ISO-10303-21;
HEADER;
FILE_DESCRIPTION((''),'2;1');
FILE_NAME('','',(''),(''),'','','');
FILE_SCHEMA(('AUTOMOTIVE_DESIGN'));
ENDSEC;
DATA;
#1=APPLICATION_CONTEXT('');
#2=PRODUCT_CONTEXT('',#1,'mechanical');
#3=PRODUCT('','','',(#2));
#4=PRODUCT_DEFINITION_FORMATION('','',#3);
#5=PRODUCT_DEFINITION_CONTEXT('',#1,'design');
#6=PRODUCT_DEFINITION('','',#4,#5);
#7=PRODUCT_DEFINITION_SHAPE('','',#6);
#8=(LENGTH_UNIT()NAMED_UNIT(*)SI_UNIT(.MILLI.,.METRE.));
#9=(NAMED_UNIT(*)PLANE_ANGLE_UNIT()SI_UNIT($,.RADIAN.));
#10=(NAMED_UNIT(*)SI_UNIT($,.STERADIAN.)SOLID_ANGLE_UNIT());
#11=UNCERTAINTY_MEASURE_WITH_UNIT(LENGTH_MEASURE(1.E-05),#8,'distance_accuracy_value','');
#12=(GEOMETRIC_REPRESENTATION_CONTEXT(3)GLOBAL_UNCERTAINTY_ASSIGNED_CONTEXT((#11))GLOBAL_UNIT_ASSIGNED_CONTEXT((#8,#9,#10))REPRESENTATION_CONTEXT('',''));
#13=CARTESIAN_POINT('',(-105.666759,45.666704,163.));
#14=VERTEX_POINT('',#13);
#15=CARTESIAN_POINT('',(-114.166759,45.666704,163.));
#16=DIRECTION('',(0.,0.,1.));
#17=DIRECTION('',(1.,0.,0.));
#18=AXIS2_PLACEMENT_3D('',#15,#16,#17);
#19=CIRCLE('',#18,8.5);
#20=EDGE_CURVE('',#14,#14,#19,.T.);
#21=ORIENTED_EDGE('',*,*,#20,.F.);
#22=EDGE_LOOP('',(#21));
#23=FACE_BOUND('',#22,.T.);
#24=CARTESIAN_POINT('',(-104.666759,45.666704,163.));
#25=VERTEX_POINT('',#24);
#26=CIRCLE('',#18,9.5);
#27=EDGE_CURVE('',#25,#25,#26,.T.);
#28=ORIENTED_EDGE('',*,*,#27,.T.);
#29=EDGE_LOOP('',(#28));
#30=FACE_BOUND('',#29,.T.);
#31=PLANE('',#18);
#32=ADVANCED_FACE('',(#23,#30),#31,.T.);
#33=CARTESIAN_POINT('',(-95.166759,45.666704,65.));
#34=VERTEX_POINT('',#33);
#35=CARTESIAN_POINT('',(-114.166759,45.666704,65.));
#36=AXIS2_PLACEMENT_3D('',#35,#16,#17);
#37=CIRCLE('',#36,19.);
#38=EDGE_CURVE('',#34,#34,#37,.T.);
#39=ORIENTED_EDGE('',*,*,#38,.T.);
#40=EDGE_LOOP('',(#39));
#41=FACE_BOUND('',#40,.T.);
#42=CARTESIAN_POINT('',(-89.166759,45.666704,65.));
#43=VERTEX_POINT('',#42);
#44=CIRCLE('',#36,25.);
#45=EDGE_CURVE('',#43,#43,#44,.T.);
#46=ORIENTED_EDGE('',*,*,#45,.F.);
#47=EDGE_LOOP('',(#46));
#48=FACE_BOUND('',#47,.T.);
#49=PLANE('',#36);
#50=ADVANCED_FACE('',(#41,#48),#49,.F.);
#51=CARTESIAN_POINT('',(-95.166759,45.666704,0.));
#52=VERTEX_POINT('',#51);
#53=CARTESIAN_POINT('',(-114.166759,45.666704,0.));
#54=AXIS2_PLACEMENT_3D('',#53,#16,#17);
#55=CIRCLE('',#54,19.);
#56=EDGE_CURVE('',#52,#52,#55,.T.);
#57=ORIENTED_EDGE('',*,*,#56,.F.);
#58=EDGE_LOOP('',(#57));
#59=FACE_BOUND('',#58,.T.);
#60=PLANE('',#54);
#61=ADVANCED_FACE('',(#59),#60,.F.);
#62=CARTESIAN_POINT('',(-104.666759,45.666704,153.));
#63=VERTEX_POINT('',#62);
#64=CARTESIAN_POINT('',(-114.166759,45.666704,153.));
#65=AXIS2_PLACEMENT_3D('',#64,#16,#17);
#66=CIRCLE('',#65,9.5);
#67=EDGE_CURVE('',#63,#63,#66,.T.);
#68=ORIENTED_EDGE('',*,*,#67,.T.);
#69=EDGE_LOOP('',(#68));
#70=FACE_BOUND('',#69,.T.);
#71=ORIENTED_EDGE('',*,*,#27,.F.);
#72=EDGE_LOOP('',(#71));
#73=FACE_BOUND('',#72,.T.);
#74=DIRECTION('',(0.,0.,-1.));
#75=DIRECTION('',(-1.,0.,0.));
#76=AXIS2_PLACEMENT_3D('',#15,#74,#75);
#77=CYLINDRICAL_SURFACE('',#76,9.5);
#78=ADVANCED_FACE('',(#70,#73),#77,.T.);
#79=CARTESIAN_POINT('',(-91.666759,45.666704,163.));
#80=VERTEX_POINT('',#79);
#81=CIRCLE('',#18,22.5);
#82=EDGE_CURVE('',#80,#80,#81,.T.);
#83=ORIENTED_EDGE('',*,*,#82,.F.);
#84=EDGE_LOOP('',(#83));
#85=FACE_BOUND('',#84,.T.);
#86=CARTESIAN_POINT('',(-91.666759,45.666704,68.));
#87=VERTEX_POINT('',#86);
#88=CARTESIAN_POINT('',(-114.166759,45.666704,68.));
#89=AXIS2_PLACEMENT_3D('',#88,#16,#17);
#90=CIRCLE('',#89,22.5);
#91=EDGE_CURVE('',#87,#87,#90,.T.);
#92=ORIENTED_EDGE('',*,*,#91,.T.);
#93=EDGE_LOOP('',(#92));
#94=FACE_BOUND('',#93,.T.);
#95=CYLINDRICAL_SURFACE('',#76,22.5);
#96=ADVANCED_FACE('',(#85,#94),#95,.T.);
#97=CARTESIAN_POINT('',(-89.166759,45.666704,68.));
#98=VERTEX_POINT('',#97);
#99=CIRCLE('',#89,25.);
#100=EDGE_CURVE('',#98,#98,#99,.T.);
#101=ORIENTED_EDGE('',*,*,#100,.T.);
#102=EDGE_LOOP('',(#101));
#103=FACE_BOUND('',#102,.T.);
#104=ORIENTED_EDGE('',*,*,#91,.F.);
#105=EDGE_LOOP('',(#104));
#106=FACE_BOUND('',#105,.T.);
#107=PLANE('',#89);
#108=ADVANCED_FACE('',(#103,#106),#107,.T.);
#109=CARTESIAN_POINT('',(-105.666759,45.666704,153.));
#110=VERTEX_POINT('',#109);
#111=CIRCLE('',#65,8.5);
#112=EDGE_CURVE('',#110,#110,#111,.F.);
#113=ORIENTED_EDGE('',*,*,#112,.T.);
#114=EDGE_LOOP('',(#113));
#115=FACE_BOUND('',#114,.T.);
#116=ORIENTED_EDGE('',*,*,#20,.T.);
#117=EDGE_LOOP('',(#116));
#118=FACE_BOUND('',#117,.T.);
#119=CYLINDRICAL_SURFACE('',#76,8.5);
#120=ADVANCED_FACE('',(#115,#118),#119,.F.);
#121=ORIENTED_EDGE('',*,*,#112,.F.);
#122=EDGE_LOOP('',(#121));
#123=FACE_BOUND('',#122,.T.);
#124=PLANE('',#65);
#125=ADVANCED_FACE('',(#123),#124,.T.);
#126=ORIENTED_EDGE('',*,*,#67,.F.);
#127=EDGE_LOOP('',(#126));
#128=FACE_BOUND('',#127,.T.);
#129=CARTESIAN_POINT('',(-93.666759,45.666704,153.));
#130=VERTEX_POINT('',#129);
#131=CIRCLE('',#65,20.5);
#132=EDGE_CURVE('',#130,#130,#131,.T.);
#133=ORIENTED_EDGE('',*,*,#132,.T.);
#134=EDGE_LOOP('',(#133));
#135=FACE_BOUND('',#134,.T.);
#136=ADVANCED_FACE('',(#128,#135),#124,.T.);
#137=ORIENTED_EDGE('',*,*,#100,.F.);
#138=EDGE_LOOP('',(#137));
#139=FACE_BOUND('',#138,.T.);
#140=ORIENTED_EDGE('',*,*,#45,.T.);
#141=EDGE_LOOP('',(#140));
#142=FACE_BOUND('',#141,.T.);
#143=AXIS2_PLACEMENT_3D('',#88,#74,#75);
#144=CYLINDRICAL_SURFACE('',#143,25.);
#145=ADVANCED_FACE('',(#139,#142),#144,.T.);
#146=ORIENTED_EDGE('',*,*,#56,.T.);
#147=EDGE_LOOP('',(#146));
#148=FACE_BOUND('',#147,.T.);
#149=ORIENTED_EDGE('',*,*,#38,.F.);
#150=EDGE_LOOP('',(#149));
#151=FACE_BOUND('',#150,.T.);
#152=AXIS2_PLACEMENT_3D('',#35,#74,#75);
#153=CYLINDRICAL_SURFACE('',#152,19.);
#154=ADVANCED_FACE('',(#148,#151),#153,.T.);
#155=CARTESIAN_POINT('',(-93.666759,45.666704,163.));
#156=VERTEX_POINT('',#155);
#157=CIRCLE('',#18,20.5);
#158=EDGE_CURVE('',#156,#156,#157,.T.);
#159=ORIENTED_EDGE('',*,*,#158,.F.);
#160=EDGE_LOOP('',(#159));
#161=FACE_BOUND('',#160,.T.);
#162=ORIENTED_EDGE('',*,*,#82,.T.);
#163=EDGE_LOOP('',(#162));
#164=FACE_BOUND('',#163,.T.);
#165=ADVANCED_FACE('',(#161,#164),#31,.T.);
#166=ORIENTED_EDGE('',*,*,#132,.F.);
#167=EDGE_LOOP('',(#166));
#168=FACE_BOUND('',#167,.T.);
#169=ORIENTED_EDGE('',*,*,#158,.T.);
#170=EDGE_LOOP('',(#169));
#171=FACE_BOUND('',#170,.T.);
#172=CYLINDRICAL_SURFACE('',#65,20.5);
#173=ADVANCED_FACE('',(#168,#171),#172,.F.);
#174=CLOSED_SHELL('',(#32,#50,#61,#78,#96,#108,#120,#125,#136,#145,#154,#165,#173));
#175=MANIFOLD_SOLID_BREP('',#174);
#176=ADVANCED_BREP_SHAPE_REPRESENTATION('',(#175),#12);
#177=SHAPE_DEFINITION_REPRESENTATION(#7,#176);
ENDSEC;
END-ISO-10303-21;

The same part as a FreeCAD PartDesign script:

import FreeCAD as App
import Part
import Sketcher

doc = App.newDocument("Part")
body = doc.addObject("PartDesign::Body", "Body")

# Sketch on XY plane
sketch1 = body.newObject("Sketcher::SketchObject", "Sketch")
sketch1.AttachmentSupport = (doc.getObject("XY_Plane"), [""])
sketch1.MapMode = "FlatFace"
sketch1.addGeometry(Part.Circle(App.Vector(-114.166759, 45.666704, 0), App.Vector(0, 0, 1), 19), False)
sketch1.addConstraint([
    Sketcher.Constraint("Diameter", 0, 38.0),
    Sketcher.Constraint("DistanceX", 0, 3, -1, 1, 114.166759),
    Sketcher.Constraint("DistanceY", -1, 1, 0, 3, 45.666704),
])
pad1 = body.newObject("PartDesign::Pad", "Pad")
pad1.Profile = sketch1
pad1.Length = 65

# Sketch on XY plane
sketch2 = body.newObject("Sketcher::SketchObject", "Sketch001")
sketch2.AttachmentSupport = (doc.getObject("XY_Plane"), [""])
sketch2.MapMode = "FlatFace"
sketch2.AttachmentOffset = App.Placement(App.Vector(0, 0, 65), App.Rotation())
sketch2.addGeometry(Part.Circle(App.Vector(-114.166759, 45.666704, 0), App.Vector(0, 0, 1), 25), False)
sketch2.addConstraint([
    Sketcher.Constraint("Diameter", 0, 50.0),
    Sketcher.Constraint("DistanceX", 0, 3, -1, 1, 114.166759),
    Sketcher.Constraint("DistanceY", -1, 1, 0, 3, 45.666704),
])
pad2 = body.newObject("PartDesign::Pad", "Pad001")
pad2.Profile = sketch2
pad2.Length = 3

# Sketch on XY plane
sketch3 = body.newObject("Sketcher::SketchObject", "Sketch002")
sketch3.AttachmentSupport = (doc.getObject("XY_Plane"), [""])
sketch3.MapMode = "FlatFace"
sketch3.AttachmentOffset = App.Placement(App.Vector(0, 0, 68), App.Rotation())
sketch3.addGeometry(Part.Circle(App.Vector(-114.166759, 45.666704, 0), App.Vector(0, 0, 1), 22.5), False)
sketch3.addConstraint([
    Sketcher.Constraint("Diameter", 0, 45.0),
    Sketcher.Constraint("DistanceX", 0, 3, -1, 1, 114.166759),
    Sketcher.Constraint("DistanceY", -1, 1, 0, 3, 45.666704),
])
pad3 = body.newObject("PartDesign::Pad", "Pad002")
pad3.Profile = sketch3
pad3.Length = 95

# Sketch on XY plane
sketch4 = body.newObject("Sketcher::SketchObject", "Sketch003")
sketch4.AttachmentSupport = (doc.getObject("XY_Plane"), [""])
sketch4.MapMode = "FlatFace"
sketch4.AttachmentOffset = App.Placement(App.Vector(0, 0, 163), App.Rotation())
sketch4.addGeometry(Part.Circle(App.Vector(-114.166759, 45.666704, 0), App.Vector(0, 0, 1), 20.5), False)
sketch4.addConstraint([
    Sketcher.Constraint("Diameter", 0, 41.0),
    Sketcher.Constraint("DistanceX", 0, 3, -1, 1, 114.166759),
    Sketcher.Constraint("DistanceY", -1, 1, 0, 3, 45.666704),
])
pocket1 = body.newObject("PartDesign::Pocket", "Pocket")
pocket1.Profile = sketch4
pocket1.Length = 10

# Sketch on XY plane
sketch5 = body.newObject("Sketcher::SketchObject", "Sketch004")
sketch5.AttachmentSupport = (doc.getObject("XY_Plane"), [""])
sketch5.MapMode = "FlatFace"
sketch5.AttachmentOffset = App.Placement(App.Vector(0, 0, 153), App.Rotation())
sketch5.addGeometry([
    Part.Circle(App.Vector(-114.166759, 45.666704, 0), App.Vector(0, 0, 1), 9.5),
    Part.Circle(App.Vector(-114.166759, 45.666704, 0), App.Vector(0, 0, 1), 8.5),
], False)
sketch5.addConstraint([
    Sketcher.Constraint("Coincident", 1, 3, 0, 3),
    Sketcher.Constraint("Diameter", 0, 19.0),
    Sketcher.Constraint("Diameter", 1, 17.0),
    Sketcher.Constraint("DistanceX", 0, 3, -1, 1, 114.166759),
    Sketcher.Constraint("DistanceY", -1, 1, 0, 3, 45.666704),
])
pad4 = body.newObject("PartDesign::Pad", "Pad003")
pad4.Profile = sketch5
pad4.Length = 10

doc.recompute()
